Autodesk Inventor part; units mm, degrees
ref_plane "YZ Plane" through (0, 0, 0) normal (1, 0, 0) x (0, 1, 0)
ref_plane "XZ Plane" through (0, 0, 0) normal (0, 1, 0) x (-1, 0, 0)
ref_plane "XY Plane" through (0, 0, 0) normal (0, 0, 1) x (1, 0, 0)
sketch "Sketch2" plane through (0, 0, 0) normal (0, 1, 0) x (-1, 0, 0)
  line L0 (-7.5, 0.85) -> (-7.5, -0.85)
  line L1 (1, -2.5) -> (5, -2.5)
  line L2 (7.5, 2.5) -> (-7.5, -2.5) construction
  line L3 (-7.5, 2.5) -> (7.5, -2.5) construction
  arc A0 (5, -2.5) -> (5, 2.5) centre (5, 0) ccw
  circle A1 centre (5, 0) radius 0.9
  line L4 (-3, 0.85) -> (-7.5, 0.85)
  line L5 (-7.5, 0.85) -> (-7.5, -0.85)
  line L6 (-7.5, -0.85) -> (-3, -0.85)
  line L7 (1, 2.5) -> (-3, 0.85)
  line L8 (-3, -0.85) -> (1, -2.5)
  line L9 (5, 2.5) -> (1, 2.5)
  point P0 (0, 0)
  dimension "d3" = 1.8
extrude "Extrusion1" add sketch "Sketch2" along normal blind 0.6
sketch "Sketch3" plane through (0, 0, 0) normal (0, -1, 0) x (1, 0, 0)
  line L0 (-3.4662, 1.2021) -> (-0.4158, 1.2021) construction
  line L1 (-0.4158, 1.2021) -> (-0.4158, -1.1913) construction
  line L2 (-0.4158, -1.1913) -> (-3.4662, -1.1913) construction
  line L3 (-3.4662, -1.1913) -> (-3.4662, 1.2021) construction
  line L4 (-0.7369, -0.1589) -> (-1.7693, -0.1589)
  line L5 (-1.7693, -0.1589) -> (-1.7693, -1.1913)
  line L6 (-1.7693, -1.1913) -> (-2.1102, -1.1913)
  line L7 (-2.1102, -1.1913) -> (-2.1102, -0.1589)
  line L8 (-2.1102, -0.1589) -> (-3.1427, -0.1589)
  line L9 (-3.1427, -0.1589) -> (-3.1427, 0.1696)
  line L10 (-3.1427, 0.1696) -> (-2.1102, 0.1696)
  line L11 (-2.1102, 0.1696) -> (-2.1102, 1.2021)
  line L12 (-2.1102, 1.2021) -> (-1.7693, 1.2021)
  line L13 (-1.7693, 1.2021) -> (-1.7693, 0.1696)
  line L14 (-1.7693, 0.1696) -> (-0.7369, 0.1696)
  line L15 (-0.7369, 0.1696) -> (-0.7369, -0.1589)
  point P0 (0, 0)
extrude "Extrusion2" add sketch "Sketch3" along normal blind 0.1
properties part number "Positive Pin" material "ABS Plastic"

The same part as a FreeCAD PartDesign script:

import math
import FreeCAD as App
import Part
import Sketcher

V = App.Vector


def add_polygon(sketch, points):
    """Adds a closed chain of lines whose ends are joined by coincident constraints."""
    first, n = sketch.GeometryCount, len(points)
    for a, b in zip(points, points[1:] + points[:1]):
        sketch.addGeometry(Part.LineSegment(App.Vector(*a, 0), App.Vector(*b, 0)), False)
    for i in range(n):
        sketch.addConstraint(Sketcher.Constraint("Coincident", first + i, 2, first + (i + 1) % n, 1))

doc = App.newDocument("Part")
body = doc.addObject("PartDesign::Body", "Body")

sketch1 = doc.addObject("Sketcher::SketchObject", "Sketch")
body.addObject(sketch1)
sketch1.AttachmentSupport = (doc.XZ_Plane, [""])
sketch1.MapMode = "FlatFace"
sketch1.addGeometry([
    Part.LineSegment(V(3, 0.8, 0), V(7.5, 0.8, 0)),
    Part.LineSegment(V(7.5, 0.8, 0), V(7.5, -0.8, 0)),
    Part.LineSegment(V(7.5, -0.8, 0), V(3, -0.8, 0)),
    Part.LineSegment(V(3, -0.8, 0), V(-1, -2.5, 0)),
    Part.LineSegment(V(-1, -2.5, 0), V(-5, -2.5, 0)),
    Part.ArcOfCircle(Part.Circle(V(-5, 0, 0), V(0, 0, 1), 2.5), math.radians(90), math.radians(270)),
    Part.LineSegment(V(-5, 2.5, 0), V(-1, 2.5, 0)),
    Part.LineSegment(V(-1, 2.5, 0), V(3, 0.8, 0)),
    Part.Circle(V(-5, 0, 0), V(0, 0, 1), 0.9),
], False)
sketch1.addConstraint([
    Sketcher.Constraint("Coincident", 0, 2, 1, 1),
    Sketcher.Constraint("Coincident", 1, 2, 2, 1),
    Sketcher.Constraint("Coincident", 2, 2, 3, 1),
    Sketcher.Constraint("Coincident", 3, 2, 4, 1),
    Sketcher.Constraint("Tangent", 4, 2, 5, 2),
    Sketcher.Constraint("Tangent", 5, 1, 6, 1),
    Sketcher.Constraint("Coincident", 6, 2, 7, 1),
    Sketcher.Constraint("Coincident", 7, 2, 0, 1),
    Sketcher.Constraint("Horizontal", 0),
    Sketcher.Constraint("Vertical", 1),
    Sketcher.Constraint("Horizontal", 2),
    Sketcher.Constraint("Horizontal", 4),
    Sketcher.Constraint("Horizontal", 6),
    Sketcher.Constraint("Coincident", 8, 3, 5, 3),
    Sketcher.Constraint("Symmetric", 3, 2, 6, 2, -1),
    Sketcher.Constraint("Symmetric", 2, 2, 7, 2, -1),
    Sketcher.Constraint("Diameter", 8, 1.8),
    Sketcher.Constraint("Radius", 5, 2.5),
    Sketcher.Constraint("DistanceX", 4, 2, 4, 1, 4.0),
    Sketcher.Constraint("DistanceX", 0, 1, 0, 2, 4.5),
    Sketcher.Constraint("DistanceY", 1, 2, 1, 1, 1.7),
    Sketcher.Constraint("DistanceX", 5, 3, -1, 1, 5.0),
    Sketcher.Constraint("DistanceX", -1, 1, 2, 2, 3.0),
])
pad1 = doc.addObject("PartDesign::Pad", "Pad")
body.addObject(pad1)
pad1.Profile = sketch1
pad1.Length = 0.6
pad1.Reversed = True

sketch2 = doc.addObject("Sketcher::SketchObject", "Sketch001")
body.addObject(sketch2)
sketch2.AttachmentSupport = (doc.XZ_Plane, [""])
sketch2.MapMode = "FlatFace"
add_polygon(sketch2, [(-1.77, -0.16), (-0.74, -0.16), (-0.74, 0.17), (-1.77, 0.17), (-1.77, 1.2), (-2.11, 1.2), (-2.11, 0.17), (-3.14, 0.17), (-3.14, -0.16), (-2.11, -0.16), (-2.11, -1.19), (-1.77, -1.19)])
sketch2.addConstraint([
    Sketcher.Constraint("Horizontal", 0),
    Sketcher.Constraint("Vertical", 1),
    Sketcher.Constraint("Horizontal", 2),
    Sketcher.Constraint("Vertical", 3),
    Sketcher.Constraint("Horizontal", 4),
    Sketcher.Constraint("Vertical", 5),
    Sketcher.Constraint("Horizontal", 6),
    Sketcher.Constraint("Vertical", 7),
    Sketcher.Constraint("Horizontal", 8),
    Sketcher.Constraint("Vertical", 9),
    Sketcher.Constraint("Horizontal", 10),
    Sketcher.Constraint("Vertical", 11),
    Sketcher.Constraint("Horizontal", 2, 2, 5, 2),
    Sketcher.Constraint("Horizontal", 0, 2, 7, 2),
    Sketcher.Constraint("Vertical", 5, 2, 8, 2),
    Sketcher.Constraint("Vertical", 3, 2, 10, 2),
    Sketcher.Constraint("Equal", 2, 6),
    Sketcher.Constraint("Equal", 8, 3),
    Sketcher.Constraint("Equal", 5, 9),
    Sketcher.Constraint("DistanceX", 4, 2, 4, 1, 0.341),
    Sketcher.Constraint("DistanceX", 0, 1, 0, 2, 1.0324),
    Sketcher.Constraint("DistanceY", 1, 1, 1, 2, 0.3285),
    Sketcher.Constraint("DistanceX", 0, 2, -1, 1, 0.737),
    Sketcher.Constraint("DistanceY", 0, 2, -1, 1, 0.159),
])
pad2 = doc.addObject("PartDesign::Pad", "Pad001")
body.addObject(pad2)
pad2.Profile = sketch2
pad2.Length = 0.1

doc.recompute()
